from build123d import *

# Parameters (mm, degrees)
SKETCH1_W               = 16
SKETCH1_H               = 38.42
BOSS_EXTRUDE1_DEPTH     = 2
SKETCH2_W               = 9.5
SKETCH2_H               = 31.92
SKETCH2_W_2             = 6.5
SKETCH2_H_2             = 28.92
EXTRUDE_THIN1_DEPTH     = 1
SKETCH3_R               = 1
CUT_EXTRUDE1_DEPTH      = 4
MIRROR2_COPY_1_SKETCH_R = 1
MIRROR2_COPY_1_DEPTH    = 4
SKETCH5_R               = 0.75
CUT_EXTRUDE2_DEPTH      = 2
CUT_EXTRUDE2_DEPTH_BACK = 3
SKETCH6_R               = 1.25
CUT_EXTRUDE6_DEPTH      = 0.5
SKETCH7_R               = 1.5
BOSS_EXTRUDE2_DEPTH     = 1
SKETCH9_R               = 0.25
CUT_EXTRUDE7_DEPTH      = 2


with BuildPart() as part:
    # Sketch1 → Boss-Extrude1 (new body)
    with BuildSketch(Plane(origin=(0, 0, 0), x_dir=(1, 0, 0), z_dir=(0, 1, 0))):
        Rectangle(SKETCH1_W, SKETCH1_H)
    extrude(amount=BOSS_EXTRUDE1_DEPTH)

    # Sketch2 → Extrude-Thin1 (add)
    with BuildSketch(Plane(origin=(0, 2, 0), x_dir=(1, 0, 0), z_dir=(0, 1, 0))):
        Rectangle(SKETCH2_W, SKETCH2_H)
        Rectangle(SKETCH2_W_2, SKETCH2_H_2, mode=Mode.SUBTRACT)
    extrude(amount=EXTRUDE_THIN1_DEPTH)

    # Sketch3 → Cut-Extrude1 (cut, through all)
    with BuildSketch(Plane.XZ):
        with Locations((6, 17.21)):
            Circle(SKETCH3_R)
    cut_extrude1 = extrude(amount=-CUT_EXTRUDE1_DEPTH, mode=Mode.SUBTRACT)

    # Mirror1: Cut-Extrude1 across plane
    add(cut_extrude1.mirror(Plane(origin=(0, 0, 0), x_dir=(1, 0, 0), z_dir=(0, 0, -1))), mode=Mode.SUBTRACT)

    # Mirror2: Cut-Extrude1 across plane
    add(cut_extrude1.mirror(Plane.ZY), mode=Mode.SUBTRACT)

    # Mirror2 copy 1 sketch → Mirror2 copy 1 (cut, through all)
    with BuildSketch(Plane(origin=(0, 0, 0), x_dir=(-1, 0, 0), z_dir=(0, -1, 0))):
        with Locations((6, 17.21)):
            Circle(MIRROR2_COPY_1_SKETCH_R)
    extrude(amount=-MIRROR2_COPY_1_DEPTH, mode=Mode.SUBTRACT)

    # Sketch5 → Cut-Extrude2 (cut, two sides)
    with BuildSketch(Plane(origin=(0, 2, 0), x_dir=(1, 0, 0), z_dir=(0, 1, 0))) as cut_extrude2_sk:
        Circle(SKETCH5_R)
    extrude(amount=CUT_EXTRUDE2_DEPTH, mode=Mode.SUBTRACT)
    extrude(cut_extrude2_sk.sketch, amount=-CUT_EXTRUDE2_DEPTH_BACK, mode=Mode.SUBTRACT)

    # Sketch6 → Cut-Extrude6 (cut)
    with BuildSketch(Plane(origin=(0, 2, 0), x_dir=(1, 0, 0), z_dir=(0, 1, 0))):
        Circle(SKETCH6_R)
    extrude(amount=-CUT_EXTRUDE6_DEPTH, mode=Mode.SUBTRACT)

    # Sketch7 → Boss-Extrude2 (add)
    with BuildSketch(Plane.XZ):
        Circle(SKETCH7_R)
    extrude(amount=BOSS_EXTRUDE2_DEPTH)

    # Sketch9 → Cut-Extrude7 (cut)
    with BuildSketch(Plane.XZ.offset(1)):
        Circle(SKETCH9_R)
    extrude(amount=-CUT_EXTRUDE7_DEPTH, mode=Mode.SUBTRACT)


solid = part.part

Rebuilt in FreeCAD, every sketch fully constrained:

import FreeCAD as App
import Part
import Sketcher

V = App.Vector

doc = App.newDocument("Part")
body = doc.addObject("PartDesign::Body", "Body")

# Sketch on XZ plane
sketch1 = body.newObject("Sketcher::SketchObject", "Sketch")
sketch1.AttachmentSupport = (doc.getObject("XZ_Plane"), [""])
sketch1.MapMode = "FlatFace"
sketch1.addGeometry([
    Part.LineSegment(V(-8, -19, 0), V(-8, 19, 0)),
    Part.LineSegment(V(-8, 19, 0), V(8, 19, 0)),
    Part.LineSegment(V(8, 19, 0), V(8, -19, 0)),
    Part.LineSegment(V(8, -19, 0), V(-8, -19, 0)),
], False)
sketch1.addConstraint([
    Sketcher.Constraint("Coincident", 0, 2, 1, 1),
    Sketcher.Constraint("Coincident", 1, 2, 2, 1),
    Sketcher.Constraint("Coincident", 2, 2, 3, 1),
    Sketcher.Constraint("Coincident", 3, 2, 0, 1),
    Sketcher.Constraint("Vertical", 0),
    Sketcher.Constraint("Horizontal", 1),
    Sketcher.Constraint("Vertical", 2),
    Sketcher.Constraint("Horizontal", 3),
    Sketcher.Constraint("Symmetric", 0, 2, 2, 2, -1, 1),
    Sketcher.Constraint("DistanceX", 1, 1, 1, 2, 16.0),
    Sketcher.Constraint("DistanceY", 0, 1, 0, 2, 38.42),
])
pad1 = body.newObject("PartDesign::Pad", "Pad")
pad1.Profile = sketch1
pad1.Length = 2
pad1.Reversed = True

# Sketch on XZ plane
sketch2 = body.newObject("Sketcher::SketchObject", "Sketch001")
sketch2.AttachmentSupport = (doc.getObject("XZ_Plane"), [""])
sketch2.MapMode = "FlatFace"
sketch2.AttachmentOffset = App.Placement(V(0, 0, -2), App.Rotation())
sketch2.addGeometry([
    Part.LineSegment(V(-5, -16, 0), V(-5, 16, 0)),  # 0
    Part.LineSegment(V(-5, 16, 0), V(5, 16, 0)),  # 1
    Part.LineSegment(V(5, 16, 0), V(5, -16, 0)),  # 2
    Part.LineSegment(V(5, -16, 0), V(-5, -16, 0)),  # 3
    Part.LineSegment(V(3, 14, 0), V(-3, 14, 0)),  # 4
    Part.LineSegment(V(-3, 14, 0), V(-3, -14, 0)),  # 5
    Part.LineSegment(V(-3, -14, 0), V(3, -14, 0)),  # 6
    Part.LineSegment(V(3, -14, 0), V(3, 14, 0)),  # 7
], False)
sketch2.addConstraint([
    Sketcher.Constraint("Coincident", 0, 2, 1, 1),
    Sketcher.Constraint("Coincident", 1, 2, 2, 1),
    Sketcher.Constraint("Coincident", 2, 2, 3, 1),
    Sketcher.Constraint("Coincident", 3, 2, 0, 1),
    Sketcher.Constraint("Coincident", 4, 2, 5, 1),
    Sketcher.Constraint("Coincident", 5, 2, 6, 1),
    Sketcher.Constraint("Coincident", 6, 2, 7, 1),
    Sketcher.Constraint("Coincident", 7, 2, 4, 1),
    Sketcher.Constraint("Vertical", 0),
    Sketcher.Constraint("Horizontal", 1),
    Sketcher.Constraint("Vertical", 2),
    Sketcher.Constraint("Horizontal", 3),
    Sketcher.Constraint("Horizontal", 4),
    Sketcher.Constraint("Vertical", 5),
    Sketcher.Constraint("Horizontal", 6),
    Sketcher.Constraint("Vertical", 7),
    Sketcher.Constraint("Symmetric", 0, 2, 2, 2, -1, 1),
    Sketcher.Constraint("Symmetric", 4, 2, 6, 2, -1, 1),
    Sketcher.Constraint("DistanceX", 1, 1, 1, 2, 9.5),
    Sketcher.Constraint("DistanceX", 4, 2, 4, 1, 6.5),
    Sketcher.Constraint("DistanceY", 0, 1, 0, 2, 31.92),
    Sketcher.Constraint("DistanceY", 5, 2, 5, 1, 28.92),
])
pad2 = body.newObject("PartDesign::Pad", "Pad001")
pad2.Profile = sketch2
pad2.Length = 1
pad2.Reversed = True

# Sketch on XZ plane
sketch3 = body.newObject("Sketcher::SketchObject", "Sketch002")
sketch3.AttachmentSupport = (doc.getObject("XZ_Plane"), [""])
sketch3.MapMode = "FlatFace"
sketch3.addGeometry(Part.Circle(V(6, 17.2, 0), V(0, 0, 1), 1), False)
sketch3.addConstraint([
    Sketcher.Constraint("Diameter", 0, 2.0),
    Sketcher.Constraint("DistanceX", -1, 1, 0, 3, 6.0),
    Sketcher.Constraint("DistanceY", -1, 1, 0, 3, 17.21),
])
pocket1 = body.newObject("PartDesign::Pocket", "Pocket")
pocket1.Profile = sketch3
pocket1.Type = "ThroughAll"
doc.recompute()

mirrored = body.newObject("PartDesign::Mirrored", "Mirrored")
mirrored.Originals = [pocket1]
mirrored.MirrorPlane = (doc.getObject("XY_Plane"), [""])
body.Tip = mirrored
doc.recompute()

mirrored2 = body.newObject("PartDesign::Mirrored", "Mirrored001")
mirrored2.Originals = [pocket1]
mirrored2.MirrorPlane = (doc.getObject("YZ_Plane"), [""])
body.Tip = mirrored2

# Sketch on XZ plane
sketch4 = body.newObject("Sketcher::SketchObject", "Sketch003")
sketch4.AttachmentSupport = (doc.getObject("XZ_Plane"), [""])
sketch4.MapMode = "FlatFace"
sketch4.addGeometry(Part.Circle(V(-6, -17.2, 0), V(0, 0, 1), 1), False)
sketch4.addConstraint([
    Sketcher.Constraint("Diameter", 0, 2.0),
    Sketcher.Constraint("DistanceX", 0, 3, -1, 1, 6.0),
    Sketcher.Constraint("DistanceY", 0, 3, -1, 1, 17.21),
])
pocket2 = body.newObject("PartDesign::Pocket", "Pocket001")
pocket2.Profile = sketch4
pocket2.Type = "ThroughAll"

# Sketch on XZ plane
sketch5 = body.newObject("Sketcher::SketchObject", "Sketch004")
sketch5.AttachmentSupport = (doc.getObject("XZ_Plane"), [""])
sketch5.MapMode = "FlatFace"
sketch5.AttachmentOffset = App.Placement(V(0, 0, -2), App.Rotation())
sketch5.addGeometry(Part.Circle(V(0, 0, 0), V(0, 0, 1), 0.8), False)
sketch5.addConstraint([
    Sketcher.Constraint("Coincident", 0, 3, -1, 1),
    Sketcher.Constraint("Diameter", 0, 1.5),
])
pocket3 = body.newObject("PartDesign::Pocket", "Pocket002")
pocket3.Profile = sketch5
pocket3.Type = "ThroughAll"
pocket3.Midplane = True

# Sketch on XZ plane
sketch6 = body.newObject("Sketcher::SketchObject", "Sketch005")
sketch6.AttachmentSupport = (doc.getObject("XZ_Plane"), [""])
sketch6.MapMode = "FlatFace"
sketch6.AttachmentOffset = App.Placement(V(0, 0, -2), App.Rotation())
sketch6.addGeometry(Part.Circle(V(0, 0, 0), V(0, 0, 1), 1.2), False)
sketch6.addConstraint([
    Sketcher.Constraint("Coincident", 0, 3, -1, 1),
    Sketcher.Constraint("Diameter", 0, 2.5),
])
pocket4 = body.newObject("PartDesign::Pocket", "Pocket003")
pocket4.Profile = sketch6
pocket4.Length = 0.5
pocket4.Reversed = True

# Sketch on XZ plane
sketch7 = body.newObject("Sketcher::SketchObject", "Sketch006")
sketch7.AttachmentSupport = (doc.getObject("XZ_Plane"), [""])
sketch7.MapMode = "FlatFace"
sketch7.addGeometry(Part.Circle(V(0, 0, 0), V(0, 0, 1), 1.5), False)
sketch7.addConstraint([
    Sketcher.Constraint("Coincident", 0, 3, -1, 1),
    Sketcher.Constraint("Diameter", 0, 3.0),
])
pad3 = body.newObject("PartDesign::Pad", "Pad002")
pad3.Profile = sketch7
pad3.Length = 1

# Sketch on XZ plane
sketch8 = body.newObject("Sketcher::SketchObject", "Sketch007")
sketch8.AttachmentSupport = (doc.getObject("XZ_Plane"), [""])
sketch8.MapMode = "FlatFace"
sketch8.AttachmentOffset = App.Placement(V(0, 0, 1), App.Rotation())
sketch8.addGeometry(Part.Circle(V(0, 0, 0), V(0, 0, 1), 0.25), False)
sketch8.addConstraint([
    Sketcher.Constraint("Coincident", 0, 3, -1, 1),
    Sketcher.Constraint("Diameter", 0, 0.5),
])
pocket5 = body.newObject("PartDesign::Pocket", "Pocket004")
pocket5.Profile = sketch8
pocket5.Length = 2

doc.recompute()
